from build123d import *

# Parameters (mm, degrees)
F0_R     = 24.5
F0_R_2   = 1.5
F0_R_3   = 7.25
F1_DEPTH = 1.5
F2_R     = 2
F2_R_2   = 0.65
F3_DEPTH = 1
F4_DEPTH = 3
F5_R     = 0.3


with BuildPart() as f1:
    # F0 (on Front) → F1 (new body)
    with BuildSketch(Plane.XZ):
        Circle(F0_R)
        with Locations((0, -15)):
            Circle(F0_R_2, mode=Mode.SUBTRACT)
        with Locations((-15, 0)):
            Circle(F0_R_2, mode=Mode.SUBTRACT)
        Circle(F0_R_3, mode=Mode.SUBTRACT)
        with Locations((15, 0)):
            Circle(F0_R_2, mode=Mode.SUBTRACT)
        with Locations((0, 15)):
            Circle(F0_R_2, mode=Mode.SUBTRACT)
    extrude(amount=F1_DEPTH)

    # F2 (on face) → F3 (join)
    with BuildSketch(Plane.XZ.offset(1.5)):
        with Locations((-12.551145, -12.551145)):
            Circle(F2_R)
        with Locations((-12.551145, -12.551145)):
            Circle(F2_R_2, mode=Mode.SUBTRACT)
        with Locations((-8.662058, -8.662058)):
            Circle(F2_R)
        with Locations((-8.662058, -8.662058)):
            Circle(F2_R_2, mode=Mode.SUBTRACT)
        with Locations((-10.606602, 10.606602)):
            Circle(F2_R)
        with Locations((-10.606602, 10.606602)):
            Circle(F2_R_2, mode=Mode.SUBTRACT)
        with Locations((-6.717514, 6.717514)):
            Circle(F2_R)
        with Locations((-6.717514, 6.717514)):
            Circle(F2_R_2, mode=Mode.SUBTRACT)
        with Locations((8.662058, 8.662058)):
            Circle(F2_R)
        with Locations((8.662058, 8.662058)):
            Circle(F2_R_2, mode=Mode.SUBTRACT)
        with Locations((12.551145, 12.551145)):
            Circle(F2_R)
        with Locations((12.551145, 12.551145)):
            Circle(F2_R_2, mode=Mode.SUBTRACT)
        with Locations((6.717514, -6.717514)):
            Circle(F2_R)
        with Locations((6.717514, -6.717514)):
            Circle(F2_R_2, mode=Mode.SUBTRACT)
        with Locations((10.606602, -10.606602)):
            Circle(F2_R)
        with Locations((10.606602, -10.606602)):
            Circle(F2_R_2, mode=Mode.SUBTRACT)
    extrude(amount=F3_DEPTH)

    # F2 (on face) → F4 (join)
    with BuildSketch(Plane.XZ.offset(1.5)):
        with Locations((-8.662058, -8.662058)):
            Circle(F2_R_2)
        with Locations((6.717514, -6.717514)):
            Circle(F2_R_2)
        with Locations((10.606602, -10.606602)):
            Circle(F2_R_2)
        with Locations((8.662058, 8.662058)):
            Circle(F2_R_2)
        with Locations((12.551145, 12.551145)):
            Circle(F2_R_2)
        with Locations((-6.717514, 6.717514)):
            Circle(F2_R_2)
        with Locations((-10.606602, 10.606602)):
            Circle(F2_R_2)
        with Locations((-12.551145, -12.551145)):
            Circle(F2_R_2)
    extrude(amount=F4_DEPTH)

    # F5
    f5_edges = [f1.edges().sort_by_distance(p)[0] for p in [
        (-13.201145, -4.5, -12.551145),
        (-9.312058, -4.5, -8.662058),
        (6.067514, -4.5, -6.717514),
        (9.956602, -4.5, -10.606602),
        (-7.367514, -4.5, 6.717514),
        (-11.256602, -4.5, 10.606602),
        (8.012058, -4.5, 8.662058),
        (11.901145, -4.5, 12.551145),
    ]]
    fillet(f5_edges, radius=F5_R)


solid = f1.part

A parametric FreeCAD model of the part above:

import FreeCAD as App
import Part
import Sketcher


def edges_at(feature, points):
    """Names of the edges that pass closest to the given points."""
    edges = feature.Shape.Edges
    near = lambda p: min(range(len(edges)), key=lambda i: edges[i].distToShape(Part.Vertex(*p))[0])
    return sorted({f"Edge{near(p) + 1}" for p in points})

doc = App.newDocument("Part")
params = doc.addObject("Spreadsheet::Sheet", "Params")
for row, (alias, value) in enumerate([
    ("sketch1_diameter", "49 mm"),
    ("sketch1_diameter2", "3 mm"),
    ("sketch1_diameter3", "14.5 mm"),
    ("pad1_length", "1.5 mm"),
    ("sketch2_diameter", "4 mm"),
    ("sketch2_diameter2", "1.3 mm"),
    ("pad2_length", "1 mm"),
    ("sketch3_diameter", "1.3 mm"),
    ("pad3_length", "3 mm"),
    ("fillet_radius", "0.3 mm"),
], start=1):
    params.set(f"A{row}", alias)
    params.set(f"B{row}", "=" + value)
    params.setAlias(f"B{row}", alias)

body = doc.addObject("PartDesign::Body", "Body")

sketch1 = body.newObject("Sketcher::SketchObject", "Sketch")
sketch1.AttachmentSupport = (doc.getObject("XZ_Plane"), [""])
sketch1.MapMode = "FlatFace"
sketch1.addGeometry(Part.Circle(App.Vector(0, 0, 0), App.Vector(0, 0, 1), 24.5), False)
sketch1.addGeometry(Part.Circle(App.Vector(0, -15, 0), App.Vector(0, 0, 1), 1.5), False)
sketch1.addGeometry(Part.Circle(App.Vector(-15, 0, 0), App.Vector(0, 0, 1), 1.5), False)
sketch1.addGeometry(Part.Circle(App.Vector(0, 0, 0), App.Vector(0, 0, 1), 7.2), False)
sketch1.addGeometry(Part.Circle(App.Vector(15, 0, 0), App.Vector(0, 0, 1), 1.5), False)
sketch1.addGeometry(Part.Circle(App.Vector(0, 15, 0), App.Vector(0, 0, 1), 1.5), False)
sketch1.addConstraint(Sketcher.Constraint("Coincident", 0, 3, -1, 1))
sketch1.addConstraint(Sketcher.Constraint("Coincident", 3, 3, -1, 1))
sketch1.addConstraint(Sketcher.Constraint("Equal", 1, 2))
sketch1.addConstraint(Sketcher.Constraint("Equal", 2, 4))
sketch1.addConstraint(Sketcher.Constraint("Equal", 4, 5))
sketch1.addConstraint(Sketcher.Constraint("Symmetric", 2, 3, 4, 3, -1, 1))
sketch1.addConstraint(Sketcher.Constraint("Symmetric", 1, 3, 5, 3, -1, 1))
sketch1.addConstraint(Sketcher.Constraint("PointOnObject", 1, 3, -2))
sketch1.addConstraint(Sketcher.Constraint("PointOnObject", 2, 3, -1))
sketch1.addConstraint(Sketcher.Constraint("Diameter", 0, 49.0))
sketch1.addConstraint(Sketcher.Constraint("Diameter", 1, 3.0))
sketch1.addConstraint(Sketcher.Constraint("Diameter", 3, 14.5))
sketch1.addConstraint(Sketcher.Constraint("DistanceY", 1, 3, -1, 1, 15.0))
sketch1.addConstraint(Sketcher.Constraint("DistanceX", 2, 3, -1, 1, 15.0))
sketch1.setExpression("Constraints[9]", "Params.sketch1_diameter")
sketch1.setExpression("Constraints[10]", "Params.sketch1_diameter2")
sketch1.setExpression("Constraints[11]", "Params.sketch1_diameter3")
pad1 = body.newObject("PartDesign::Pad", "Pad")
pad1.Profile = sketch1
pad1.setExpression("Length", "Params.pad1_length")

sketch2 = body.newObject("Sketcher::SketchObject", "Sketch001")
sketch2.AttachmentSupport = (doc.getObject("XZ_Plane"), [""])
sketch2.MapMode = "FlatFace"
sketch2.AttachmentOffset = App.Placement(App.Vector(0, 0, 1.5), App.Rotation())
sketch2.addGeometry(Part.Circle(App.Vector(-12.6, -12.6, 0), App.Vector(0, 0, 1), 2), False)
sketch2.addGeometry(Part.Circle(App.Vector(-12.6, -12.6, 0), App.Vector(0, 0, 1), 0.7), False)
sketch2.addGeometry(Part.Circle(App.Vector(-8.7, -8.7, 0), App.Vector(0, 0, 1), 2), False)
sketch2.addGeometry(Part.Circle(App.Vector(-8.7, -8.7, 0), App.Vector(0, 0, 1), 0.7), False)
sketch2.addGeometry(Part.Circle(App.Vector(-10.6, 10.6, 0), App.Vector(0, 0, 1), 2), False)
sketch2.addGeometry(Part.Circle(App.Vector(-10.6, 10.6, 0), App.Vector(0, 0, 1), 0.7), False)
sketch2.addGeometry(Part.Circle(App.Vector(-6.7, 6.7, 0), App.Vector(0, 0, 1), 2), False)
sketch2.addGeometry(Part.Circle(App.Vector(-6.7, 6.7, 0), App.Vector(0, 0, 1), 0.7), False)
sketch2.addGeometry(Part.Circle(App.Vector(8.7, 8.7, 0), App.Vector(0, 0, 1), 2), False)
sketch2.addGeometry(Part.Circle(App.Vector(8.7, 8.7, 0), App.Vector(0, 0, 1), 0.7), False)
sketch2.addGeometry(Part.Circle(App.Vector(12.6, 12.6, 0), App.Vector(0, 0, 1), 2), False)
sketch2.addGeometry(Part.Circle(App.Vector(12.6, 12.6, 0), App.Vector(0, 0, 1), 0.7), False)
sketch2.addGeometry(Part.Circle(App.Vector(6.7, -6.7, 0), App.Vector(0, 0, 1), 2), False)
sketch2.addGeometry(Part.Circle(App.Vector(6.7, -6.7, 0), App.Vector(0, 0, 1), 0.7), False)
sketch2.addGeometry(Part.Circle(App.Vector(10.6, -10.6, 0), App.Vector(0, 0, 1), 2), False)
sketch2.addGeometry(Part.Circle(App.Vector(10.6, -10.6, 0), App.Vector(0, 0, 1), 0.7), False)
sketch2.addConstraint(Sketcher.Constraint("Coincident", 1, 3, 0, 3))
sketch2.addConstraint(Sketcher.Constraint("Coincident", 3, 3, 2, 3))
sketch2.addConstraint(Sketcher.Constraint("Coincident", 5, 3, 4, 3))
sketch2.addConstraint(Sketcher.Constraint("Coincident", 7, 3, 6, 3))
sketch2.addConstraint(Sketcher.Constraint("Coincident", 9, 3, 8, 3))
sketch2.addConstraint(Sketcher.Constraint("Coincident", 11, 3, 10, 3))
sketch2.addConstraint(Sketcher.Constraint("Coincident", 13, 3, 12, 3))
sketch2.addConstraint(Sketcher.Constraint("Coincident", 15, 3, 14, 3))
sketch2.addConstraint(Sketcher.Constraint("Equal", 0, 2))
sketch2.addConstraint(Sketcher.Constraint("Equal", 1, 3))
sketch2.addConstraint(Sketcher.Constraint("Equal", 2, 4))
sketch2.addConstraint(Sketcher.Constraint("Equal", 3, 5))
sketch2.addConstraint(Sketcher.Constraint("Equal", 4, 6))
sketch2.addConstraint(Sketcher.Constraint("Equal", 5, 7))
sketch2.addConstraint(Sketcher.Constraint("Equal", 6, 8))
sketch2.addConstraint(Sketcher.Constraint("Equal", 7, 9))
sketch2.addConstraint(Sketcher.Constraint("Equal", 8, 10))
sketch2.addConstraint(Sketcher.Constraint("Equal", 9, 11))
sketch2.addConstraint(Sketcher.Constraint("Equal", 10, 12))
sketch2.addConstraint(Sketcher.Constraint("Equal", 11, 13))
sketch2.addConstraint(Sketcher.Constraint("Equal", 12, 14))
sketch2.addConstraint(Sketcher.Constraint("Equal", 13, 15))
sketch2.addConstraint(Sketcher.Constraint("Symmetric", 2, 3, 8, 3, -1, 1))
sketch2.addConstraint(Sketcher.Constraint("Symmetric", 0, 3, 10, 3, -1, 1))
sketch2.addConstraint(Sketcher.Constraint("Symmetric", 6, 3, 12, 3, -1, 1))
sketch2.addConstraint(Sketcher.Constraint("Symmetric", 4, 3, 14, 3, -1, 1))
sketch2.addConstraint(Sketcher.Constraint("Diameter", 0, 4.0))
sketch2.addConstraint(Sketcher.Constraint("Diameter", 1, 1.3))
sketch2.addConstraint(Sketcher.Constraint("DistanceY", 2, 3, 4, 3, 19.26866))
sketch2.addConstraint(Sketcher.Constraint("DistanceX", 4, 3, 6, 3, 3.889088))
sketch2.addConstraint(Sketcher.Constraint("DistanceY", 6, 3, 4, 3, 3.889088))
sketch2.addConstraint(Sketcher.Constraint("DistanceX", 0, 3, 6, 3, 5.833631))
sketch2.addConstraint(Sketcher.Constraint("DistanceY", 0, 3, 6, 3, 19.268659))
sketch2.addConstraint(Sketcher.Constraint("DistanceX", 4, 3, 8, 3, 19.26866))
sketch2.addConstraint(Sketcher.Constraint("DistanceX", 6, 3, 10, 3, 19.268659))
sketch2.addConstraint(Sketcher.Constraint("DistanceY", 6, 3, 10, 3, 5.833631))
sketch2.setExpression("Constraints[26]", "Params.sketch2_diameter")
sketch2.setExpression("Constraints[27]", "Params.sketch2_diameter2")
pad2 = body.newObject("PartDesign::Pad", "Pad001")
pad2.Profile = sketch2
pad2.setExpression("Length", "Params.pad2_length")

sketch3 = body.newObject("Sketcher::SketchObject", "Sketch002")
sketch3.AttachmentSupport = (doc.getObject("XZ_Plane"), [""])
sketch3.MapMode = "FlatFace"
sketch3.AttachmentOffset = App.Placement(App.Vector(0, 0, 1.5), App.Rotation())
sketch3.addGeometry(Part.Circle(App.Vector(-8.7, -8.7, 0), App.Vector(0, 0, 1), 0.7), False)
sketch3.addGeometry(Part.Circle(App.Vector(6.7, -6.7, 0), App.Vector(0, 0, 1), 0.7), False)
sketch3.addGeometry(Part.Circle(App.Vector(10.6, -10.6, 0), App.Vector(0, 0, 1), 0.7), False)
sketch3.addGeometry(Part.Circle(App.Vector(8.7, 8.7, 0), App.Vector(0, 0, 1), 0.7), False)
sketch3.addGeometry(Part.Circle(App.Vector(12.6, 12.6, 0), App.Vector(0, 0, 1), 0.7), False)
sketch3.addGeometry(Part.Circle(App.Vector(-6.7, 6.7, 0), App.Vector(0, 0, 1), 0.7), False)
sketch3.addGeometry(Part.Circle(App.Vector(-10.6, 10.6, 0), App.Vector(0, 0, 1), 0.7), False)
sketch3.addGeometry(Part.Circle(App.Vector(-12.6, -12.6, 0), App.Vector(0, 0, 1), 0.7), False)
sketch3.addConstraint(Sketcher.Constraint("Equal", 0, 1))
sketch3.addConstraint(Sketcher.Constraint("Equal", 1, 2))
sketch3.addConstraint(Sketcher.Constraint("Equal", 2, 3))
sketch3.addConstraint(Sketcher.Constraint("Equal", 3, 4))
sketch3.addConstraint(Sketcher.Constraint("Equal", 4, 5))
sketch3.addConstraint(Sketcher.Constraint("Equal", 5, 6))
sketch3.addConstraint(Sketcher.Constraint("Equal", 6, 7))
sketch3.addConstraint(Sketcher.Constraint("Symmetric", 0, 3, 3, 3, -1, 1))
sketch3.addConstraint(Sketcher.Constraint("Symmetric", 1, 3, 5, 3, -1, 1))
sketch3.addConstraint(Sketcher.Constraint("Symmetric", 2, 3, 6, 3, -1, 1))
sketch3.addConstraint(Sketcher.Constraint("Symmetric", 4, 3, 7, 3, -1, 1))
sketch3.addConstraint(Sketcher.Constraint("Diameter", 0, 1.3))
sketch3.addConstraint(Sketcher.Constraint("DistanceX", 1, 3, 2, 3, 3.889088))
sketch3.addConstraint(Sketcher.Constraint("DistanceY", 2, 3, 1, 3, 3.889088))
sketch3.addConstraint(Sketcher.Constraint("DistanceX", 0, 3, 2, 3, 19.26866))
sketch3.addConstraint(Sketcher.Constraint("DistanceY", 2, 3, 3, 3, 19.26866))
sketch3.addConstraint(Sketcher.Constraint("DistanceX", 1, 3, 4, 3, 5.833631))
sketch3.addConstraint(Sketcher.Constraint("DistanceY", 1, 3, 4, 3, 19.268659))
sketch3.addConstraint(Sketcher.Constraint("DistanceX", 5, 3, 1, 3, 13.435028))
sketch3.addConstraint(Sketcher.Constraint("DistanceY", 1, 3, 5, 3, 13.435028))
sketch3.setExpression("Constraints[11]", "Params.sketch3_diameter")
pad3 = body.newObject("PartDesign::Pad", "Pad002")
pad3.Profile = sketch3
pad3.setExpression("Length", "Params.pad3_length")
doc.recompute()

fillet = body.newObject("PartDesign::Fillet", "Fillet")
fillet.Base = (pad3, edges_at(pad3, [
    (-13.201, -4.5, -12.551),
    (-9.312, -4.5, -8.662),
    (6.068, -4.5, -6.718),
    (9.957, -4.5, -10.607),
    (-7.368, -4.5, 6.718),
    (-11.257, -4.5, 10.607),
    (8.012, -4.5, 8.662),
    (11.901, -4.5, 12.551),
]))
fillet.setExpression("Radius", "Params.fillet_radius")

doc.recompute()
